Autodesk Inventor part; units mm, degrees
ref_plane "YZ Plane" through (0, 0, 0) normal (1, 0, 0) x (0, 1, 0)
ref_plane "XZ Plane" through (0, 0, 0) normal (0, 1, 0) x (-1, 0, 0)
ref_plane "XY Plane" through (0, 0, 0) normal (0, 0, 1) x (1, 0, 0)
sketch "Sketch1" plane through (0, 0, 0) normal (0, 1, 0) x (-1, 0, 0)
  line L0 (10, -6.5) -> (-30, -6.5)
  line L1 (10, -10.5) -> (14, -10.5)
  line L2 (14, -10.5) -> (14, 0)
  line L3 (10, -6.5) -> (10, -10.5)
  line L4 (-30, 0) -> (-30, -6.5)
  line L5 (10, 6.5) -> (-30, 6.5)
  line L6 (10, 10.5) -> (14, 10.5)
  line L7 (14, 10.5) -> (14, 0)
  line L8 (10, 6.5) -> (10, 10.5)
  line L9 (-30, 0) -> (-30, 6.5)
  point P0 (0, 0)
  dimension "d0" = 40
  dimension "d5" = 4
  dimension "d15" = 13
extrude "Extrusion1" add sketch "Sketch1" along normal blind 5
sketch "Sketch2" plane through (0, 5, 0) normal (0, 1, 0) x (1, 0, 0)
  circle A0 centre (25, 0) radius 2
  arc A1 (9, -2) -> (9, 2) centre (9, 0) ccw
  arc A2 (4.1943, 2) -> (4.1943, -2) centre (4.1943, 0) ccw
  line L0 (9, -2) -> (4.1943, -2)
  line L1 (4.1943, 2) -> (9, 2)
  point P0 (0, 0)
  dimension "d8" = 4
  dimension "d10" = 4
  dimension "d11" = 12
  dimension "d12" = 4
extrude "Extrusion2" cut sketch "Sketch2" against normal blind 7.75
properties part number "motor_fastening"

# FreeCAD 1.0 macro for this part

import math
import FreeCAD as App
import Part
import Sketcher

V = App.Vector
Q = App.Units.Quantity

doc = App.newDocument("Part")
params = doc.addObject("Spreadsheet::Sheet", "Params")
for row, (alias, value) in enumerate([
    ("sketch1_width", "40 mm"),
    ("sketch1_width2", "4 mm"),
    ("sketch1_height", "13 mm"),
    ("pad1_length", "5 mm"),
    ("sketch2_diameter", "4 mm"),
    ("pocket1_length", "7.75 mm"),
], start=1):
    params.set(f"A{row}", alias)
    params.set(f"B{row}", "=" + value)
    params.setAlias(f"B{row}", alias)

body = doc.addObject("PartDesign::Body", "Body")

# Sketch on XZ plane
sketch1 = body.newObject("Sketcher::SketchObject", "Sketch")
sketch1.AttachmentSupport = (doc.getObject("XZ_Plane"), [""])
sketch1.MapMode = "FlatFace"
sketch1.addGeometry([
    Part.LineSegment(V(30, -6.5, 0), V(-10, -6.5, 0)),  # 0
    Part.LineSegment(V(-10, -6.5, 0), V(-10, -10.5, 0)),  # 1
    Part.LineSegment(V(-10, -10.5, 0), V(-14, -10.5, 0)),  # 2
    Part.LineSegment(V(-14, -10.5, 0), V(-14, 10.5, 0)),  # 3
    Part.LineSegment(V(-14, 10.5, 0), V(-10, 10.5, 0)),  # 4
    Part.LineSegment(V(-10, 10.5, 0), V(-10, 6.5, 0)),  # 5
    Part.LineSegment(V(-10, 6.5, 0), V(30, 6.5, 0)),  # 6
    Part.LineSegment(V(30, 6.5, 0), V(30, -6.5, 0)),  # 7
], False)
sketch1.addConstraint([
    Sketcher.Constraint("Coincident", 0, 2, 1, 1),
    Sketcher.Constraint("Coincident", 1, 2, 2, 1),
    Sketcher.Constraint("Coincident", 2, 2, 3, 1),
    Sketcher.Constraint("Coincident", 3, 2, 4, 1),
    Sketcher.Constraint("Coincident", 4, 2, 5, 1),
    Sketcher.Constraint("Coincident", 5, 2, 6, 1),
    Sketcher.Constraint("Coincident", 6, 2, 7, 1),
    Sketcher.Constraint("Coincident", 7, 2, 0, 1),
    Sketcher.Constraint("Horizontal", 0),
    Sketcher.Constraint("Vertical", 1),
    Sketcher.Constraint("Horizontal", 2),
    Sketcher.Constraint("Vertical", 3),
    Sketcher.Constraint("Horizontal", 4),
    Sketcher.Constraint("Vertical", 5),
    Sketcher.Constraint("Horizontal", 6),
    Sketcher.Constraint("Vertical", 7),
    Sketcher.Constraint("Symmetric", 1, 2, 4, 2, -1),
    Sketcher.Constraint("Equal", 4, 1),
    Sketcher.Constraint("Equal", 1, 5),
    Sketcher.Constraint("DistanceX", 0, 2, 0, 1, Q("40 mm")),
    Sketcher.Constraint("DistanceX", 2, 2, 2, 1, Q("4 mm")),
    Sketcher.Constraint("DistanceY", 7, 2, 7, 1, Q("13 mm")),
    Sketcher.Constraint("DistanceX", 0, 2, -1, 1, Q("10 mm")),
])
sketch1.setExpression("Constraints[19]", "Params.sketch1_width")
sketch1.setExpression("Constraints[20]", "Params.sketch1_width2")
sketch1.setExpression("Constraints[21]", "Params.sketch1_height")
pad1 = body.newObject("PartDesign::Pad", "Pad")
pad1.Profile = sketch1
pad1.setExpression("Length", "Params.pad1_length")
pad1.Reversed = True

# Sketch on XZ plane
sketch2 = body.newObject("Sketcher::SketchObject", "Sketch001")
sketch2.AttachmentSupport = (doc.getObject("XZ_Plane"), [""])
sketch2.MapMode = "FlatFace"
sketch2.AttachmentOffset = App.Placement(V(0, 0, -5), App.Rotation())
sketch2.addGeometry([
    Part.Circle(V(25, 0, 0), V(0, 0, 1), 2),  # 0
    Part.LineSegment(V(4.1943, 2, 0), V(9, 2, 0)),  # 1
    Part.ArcOfCircle(Part.Circle(V(9, 0, 0), V(0, 0, 1), 2), math.radians(-90), math.radians(90)),  # 2
    Part.LineSegment(V(9, -2, 0), V(4.1943, -2, 0)),  # 3
    Part.ArcOfCircle(Part.Circle(V(4.1943, 0, 0), V(0, 0, 1), 2), math.radians(90), math.radians(270)),  # 4
], False)
sketch2.addConstraint([
    Sketcher.Constraint("Tangent", 1, 2, 2, 2),
    Sketcher.Constraint("Tangent", 2, 1, 3, 1),
    Sketcher.Constraint("Tangent", 3, 2, 4, 2),
    Sketcher.Constraint("Tangent", 4, 1, 1, 1),
    Sketcher.Constraint("Horizontal", 1),
    Sketcher.Constraint("Horizontal", 3),
    Sketcher.Constraint("Equal", 0, 2),
    Sketcher.Constraint("PointOnObject", 0, 3, -1),
    Sketcher.Constraint("PointOnObject", 2, 3, -1),
    Sketcher.Constraint("Diameter", 0, Q("4 mm")),
    Sketcher.Constraint("DistanceX", -1, 1, 0, 3, Q("25 mm")),
    Sketcher.Constraint("DistanceX", -1, 1, 2, 3, Q("9 mm")),
    Sketcher.Constraint("DistanceX", 1, 1, 1, 2, Q("4.8057 mm")),
])
sketch2.setExpression("Constraints[9]", "Params.sketch2_diameter")
pocket1 = body.newObject("PartDesign::Pocket", "Pocket")
pocket1.Profile = sketch2
pocket1.setExpression("Length", "Params.pocket1_length")
pocket1.Reversed = True

doc.recompute()
